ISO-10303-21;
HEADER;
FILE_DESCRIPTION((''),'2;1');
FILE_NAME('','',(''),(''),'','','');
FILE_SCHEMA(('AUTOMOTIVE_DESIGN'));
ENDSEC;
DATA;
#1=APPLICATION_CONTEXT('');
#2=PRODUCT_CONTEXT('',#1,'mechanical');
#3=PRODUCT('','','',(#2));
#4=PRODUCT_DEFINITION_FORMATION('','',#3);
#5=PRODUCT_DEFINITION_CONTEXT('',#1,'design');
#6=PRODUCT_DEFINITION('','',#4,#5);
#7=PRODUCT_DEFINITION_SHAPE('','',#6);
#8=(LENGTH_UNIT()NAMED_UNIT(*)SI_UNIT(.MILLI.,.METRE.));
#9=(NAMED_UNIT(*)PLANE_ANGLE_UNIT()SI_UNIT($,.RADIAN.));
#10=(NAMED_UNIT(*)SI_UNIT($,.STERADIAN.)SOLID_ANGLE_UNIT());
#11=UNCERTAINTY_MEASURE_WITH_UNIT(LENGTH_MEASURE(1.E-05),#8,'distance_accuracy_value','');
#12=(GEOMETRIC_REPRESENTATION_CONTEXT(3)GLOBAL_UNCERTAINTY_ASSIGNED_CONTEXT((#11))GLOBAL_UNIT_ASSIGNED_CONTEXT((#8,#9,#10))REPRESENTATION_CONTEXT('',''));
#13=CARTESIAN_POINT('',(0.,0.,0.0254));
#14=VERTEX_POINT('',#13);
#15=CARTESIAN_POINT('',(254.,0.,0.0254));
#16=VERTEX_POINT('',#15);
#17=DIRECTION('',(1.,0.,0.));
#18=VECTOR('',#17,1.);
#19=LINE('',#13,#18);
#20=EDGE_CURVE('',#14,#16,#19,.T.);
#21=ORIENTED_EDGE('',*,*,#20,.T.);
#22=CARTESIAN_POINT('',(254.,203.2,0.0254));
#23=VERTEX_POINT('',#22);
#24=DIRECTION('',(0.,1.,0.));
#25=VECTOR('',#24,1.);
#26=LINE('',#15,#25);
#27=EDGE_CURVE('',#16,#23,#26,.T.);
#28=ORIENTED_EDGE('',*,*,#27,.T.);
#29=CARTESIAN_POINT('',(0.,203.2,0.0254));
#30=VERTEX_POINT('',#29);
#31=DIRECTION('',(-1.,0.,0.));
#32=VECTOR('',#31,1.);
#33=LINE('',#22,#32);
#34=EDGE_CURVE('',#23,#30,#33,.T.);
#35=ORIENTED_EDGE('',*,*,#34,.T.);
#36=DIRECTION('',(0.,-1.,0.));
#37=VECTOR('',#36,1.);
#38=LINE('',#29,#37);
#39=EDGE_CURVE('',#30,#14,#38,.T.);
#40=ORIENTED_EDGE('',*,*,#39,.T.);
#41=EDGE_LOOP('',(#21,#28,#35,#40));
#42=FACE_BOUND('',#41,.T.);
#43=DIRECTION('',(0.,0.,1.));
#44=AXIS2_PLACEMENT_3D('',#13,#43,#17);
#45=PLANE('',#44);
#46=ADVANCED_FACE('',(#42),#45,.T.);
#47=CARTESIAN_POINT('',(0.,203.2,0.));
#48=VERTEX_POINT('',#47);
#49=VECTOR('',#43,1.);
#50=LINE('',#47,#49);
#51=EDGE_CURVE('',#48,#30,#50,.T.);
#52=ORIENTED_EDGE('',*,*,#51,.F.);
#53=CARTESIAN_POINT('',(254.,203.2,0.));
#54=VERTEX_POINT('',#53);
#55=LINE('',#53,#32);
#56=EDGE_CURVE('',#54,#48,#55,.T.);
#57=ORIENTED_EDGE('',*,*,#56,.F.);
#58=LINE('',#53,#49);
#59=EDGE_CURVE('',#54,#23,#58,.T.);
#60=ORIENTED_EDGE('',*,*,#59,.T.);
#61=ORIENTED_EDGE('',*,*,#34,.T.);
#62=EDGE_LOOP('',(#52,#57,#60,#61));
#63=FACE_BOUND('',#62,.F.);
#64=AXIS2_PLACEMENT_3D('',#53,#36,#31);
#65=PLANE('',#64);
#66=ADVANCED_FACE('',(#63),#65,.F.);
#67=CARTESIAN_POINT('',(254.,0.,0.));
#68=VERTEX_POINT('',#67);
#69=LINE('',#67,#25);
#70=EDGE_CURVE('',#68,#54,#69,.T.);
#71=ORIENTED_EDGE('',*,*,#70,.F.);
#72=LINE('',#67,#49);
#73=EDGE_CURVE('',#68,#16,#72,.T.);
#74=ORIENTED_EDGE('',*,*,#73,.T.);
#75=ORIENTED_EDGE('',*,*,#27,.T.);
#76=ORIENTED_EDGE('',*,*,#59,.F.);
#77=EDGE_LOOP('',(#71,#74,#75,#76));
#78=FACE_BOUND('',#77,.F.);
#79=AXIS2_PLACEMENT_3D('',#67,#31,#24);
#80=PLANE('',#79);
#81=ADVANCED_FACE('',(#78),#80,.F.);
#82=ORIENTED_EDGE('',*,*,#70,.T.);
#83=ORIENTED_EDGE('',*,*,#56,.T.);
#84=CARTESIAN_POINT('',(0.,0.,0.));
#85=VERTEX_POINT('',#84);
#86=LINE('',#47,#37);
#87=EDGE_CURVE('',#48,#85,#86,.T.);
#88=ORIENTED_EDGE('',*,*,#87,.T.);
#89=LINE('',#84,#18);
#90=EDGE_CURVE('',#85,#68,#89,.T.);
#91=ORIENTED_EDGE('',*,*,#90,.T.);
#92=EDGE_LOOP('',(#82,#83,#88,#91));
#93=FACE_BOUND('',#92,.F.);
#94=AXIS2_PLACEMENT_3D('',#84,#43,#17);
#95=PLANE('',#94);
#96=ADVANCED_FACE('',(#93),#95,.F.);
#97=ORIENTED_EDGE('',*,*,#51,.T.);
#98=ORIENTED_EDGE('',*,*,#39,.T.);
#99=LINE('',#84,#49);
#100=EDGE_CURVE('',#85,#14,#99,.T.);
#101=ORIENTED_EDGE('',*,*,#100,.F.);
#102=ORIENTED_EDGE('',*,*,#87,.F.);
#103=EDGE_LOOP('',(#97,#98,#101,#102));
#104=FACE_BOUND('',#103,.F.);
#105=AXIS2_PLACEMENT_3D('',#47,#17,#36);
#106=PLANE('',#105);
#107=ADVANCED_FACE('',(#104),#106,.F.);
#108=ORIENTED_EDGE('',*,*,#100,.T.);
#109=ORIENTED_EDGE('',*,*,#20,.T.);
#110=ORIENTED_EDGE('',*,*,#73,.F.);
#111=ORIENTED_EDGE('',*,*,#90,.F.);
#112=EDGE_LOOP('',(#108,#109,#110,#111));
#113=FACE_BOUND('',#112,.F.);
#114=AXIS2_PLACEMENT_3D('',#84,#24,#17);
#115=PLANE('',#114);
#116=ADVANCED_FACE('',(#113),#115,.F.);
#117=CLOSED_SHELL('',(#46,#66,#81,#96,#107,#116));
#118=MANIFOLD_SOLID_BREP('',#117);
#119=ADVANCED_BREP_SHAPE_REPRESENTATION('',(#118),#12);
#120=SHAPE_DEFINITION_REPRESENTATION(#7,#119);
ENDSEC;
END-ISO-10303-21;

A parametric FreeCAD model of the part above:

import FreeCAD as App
import Part
import Sketcher
Q = App.Units.Quantity

doc = App.newDocument("Part")
body = doc.addObject("PartDesign::Body", "Body")

# Sketch on XY plane
sketch1 = doc.addObject("Sketcher::SketchObject", "Sketch")
body.addObject(sketch1)
sketch1.AttachmentSupport = (doc.XY_Plane, [""])
sketch1.MapMode = "FlatFace"
sketch1.addGeometry([
    Part.LineSegment(App.Vector(0, 203.2, 0), App.Vector(0, 0, 0)),
    Part.LineSegment(App.Vector(0, 0, 0), App.Vector(254, 0, 0)),
    Part.LineSegment(App.Vector(254, 0, 0), App.Vector(254, 203.2, 0)),
    Part.LineSegment(App.Vector(254, 203.2, 0), App.Vector(0, 203.2, 0)),
], False)
sketch1.addConstraint([
    Sketcher.Constraint("Coincident", 0, 2, 1, 1),
    Sketcher.Constraint("Coincident", 1, 2, 2, 1),
    Sketcher.Constraint("Coincident", 2, 2, 3, 1),
    Sketcher.Constraint("Coincident", 3, 2, 0, 1),
    Sketcher.Constraint("Vertical", 0),
    Sketcher.Constraint("Horizontal", 1),
    Sketcher.Constraint("Vertical", 2),
    Sketcher.Constraint("Horizontal", 3),
    Sketcher.Constraint("Coincident", 0, 2, -1, 1),
    Sketcher.Constraint("DistanceX", 1, 1, 1, 2, Q("10 in")),
    Sketcher.Constraint("DistanceY", 0, 2, 0, 1, Q("8 in")),
])
pad1 = doc.addObject("PartDesign::Pad", "Pad")
body.addObject(pad1)
pad1.Profile = sketch1
pad1.Length = Q("0.001 in")

doc.recompute()
